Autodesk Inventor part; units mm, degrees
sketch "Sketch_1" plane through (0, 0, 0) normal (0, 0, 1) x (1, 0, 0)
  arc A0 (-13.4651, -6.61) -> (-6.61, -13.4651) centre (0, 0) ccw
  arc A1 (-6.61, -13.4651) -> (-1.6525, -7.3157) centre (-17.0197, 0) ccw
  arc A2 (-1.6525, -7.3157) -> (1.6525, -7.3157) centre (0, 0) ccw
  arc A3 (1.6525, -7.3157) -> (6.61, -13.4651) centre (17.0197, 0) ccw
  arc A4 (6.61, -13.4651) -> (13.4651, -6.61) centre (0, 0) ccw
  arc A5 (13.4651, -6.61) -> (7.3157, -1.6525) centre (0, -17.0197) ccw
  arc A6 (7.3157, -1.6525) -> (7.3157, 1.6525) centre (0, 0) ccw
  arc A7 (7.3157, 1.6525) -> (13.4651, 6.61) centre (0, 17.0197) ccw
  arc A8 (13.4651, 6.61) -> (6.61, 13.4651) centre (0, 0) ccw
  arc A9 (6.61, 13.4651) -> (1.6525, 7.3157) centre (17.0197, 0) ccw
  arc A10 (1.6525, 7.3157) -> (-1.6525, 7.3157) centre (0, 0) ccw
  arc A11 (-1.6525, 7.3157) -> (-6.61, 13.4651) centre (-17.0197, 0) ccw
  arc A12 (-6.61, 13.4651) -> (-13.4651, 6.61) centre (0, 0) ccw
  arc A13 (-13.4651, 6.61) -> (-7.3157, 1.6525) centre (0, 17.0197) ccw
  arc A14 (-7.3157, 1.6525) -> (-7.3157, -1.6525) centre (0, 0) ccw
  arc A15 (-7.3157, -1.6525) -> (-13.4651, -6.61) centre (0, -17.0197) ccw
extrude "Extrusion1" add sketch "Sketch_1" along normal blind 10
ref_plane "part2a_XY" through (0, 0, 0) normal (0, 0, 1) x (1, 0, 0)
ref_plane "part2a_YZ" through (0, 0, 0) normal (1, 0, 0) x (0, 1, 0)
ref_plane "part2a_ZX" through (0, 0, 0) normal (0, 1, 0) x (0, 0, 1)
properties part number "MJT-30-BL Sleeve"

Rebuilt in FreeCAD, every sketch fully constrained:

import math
import FreeCAD as App
import Part
import Sketcher
Q = App.Units.Quantity

doc = App.newDocument("Part")
body = doc.addObject("PartDesign::Body", "Body")

# Sketch on XY plane
sketch1 = body.newObject("Sketcher::SketchObject", "Sketch")
sketch1.AttachmentSupport = (doc.getObject("XY_Plane"), [""])
sketch1.MapMode = "FlatFace"
sketch1.addGeometry([
    Part.ArcOfCircle(Part.Circle(App.Vector(0, -17, 0), App.Vector(0, 0, 1), 17), math.radians(115), math.radians(142)),  # 0
    Part.ArcOfCircle(Part.Circle(App.Vector(0, 0, 0), App.Vector(0, 0, 1), 15), math.radians(-154), math.radians(-116)),  # 1
    Part.ArcOfCircle(Part.Circle(App.Vector(-17, 0, 0), App.Vector(0, 0, 1), 17), math.radians(-52), math.radians(-25)),  # 2
    Part.ArcOfCircle(Part.Circle(App.Vector(0, 0, 0), App.Vector(0, 0, 1), 7.5), math.radians(-103), math.radians(-77)),  # 3
    Part.ArcOfCircle(Part.Circle(App.Vector(17, 0, 0), App.Vector(0, 0, 1), 17), math.radians(-155), math.radians(-128)),  # 4
    Part.ArcOfCircle(Part.Circle(App.Vector(0, 0, 0), App.Vector(0, 0, 1), 15), math.radians(-64), math.radians(-26)),  # 5
    Part.ArcOfCircle(Part.Circle(App.Vector(0, -17, 0), App.Vector(0, 0, 1), 17), math.radians(38), math.radians(65)),  # 6
    Part.ArcOfCircle(Part.Circle(App.Vector(0, 0, 0), App.Vector(0, 0, 1), 7.5), math.radians(-13), math.radians(13)),  # 7
    Part.ArcOfCircle(Part.Circle(App.Vector(0, 17, 0), App.Vector(0, 0, 1), 17), math.radians(-65), math.radians(-38)),  # 8
    Part.ArcOfCircle(Part.Circle(App.Vector(0, 0, 0), App.Vector(0, 0, 1), 15), math.radians(26), math.radians(64)),  # 9
    Part.ArcOfCircle(Part.Circle(App.Vector(17, 0, 0), App.Vector(0, 0, 1), 17), math.radians(128), math.radians(155)),  # 10
    Part.ArcOfCircle(Part.Circle(App.Vector(0, 0, 0), App.Vector(0, 0, 1), 7.5), math.radians(77), math.radians(103)),  # 11
    Part.ArcOfCircle(Part.Circle(App.Vector(-17, 0, 0), App.Vector(0, 0, 1), 17), math.radians(25), math.radians(52)),  # 12
    Part.ArcOfCircle(Part.Circle(App.Vector(0, 0, 0), App.Vector(0, 0, 1), 15), math.radians(116), math.radians(154)),  # 13
    Part.ArcOfCircle(Part.Circle(App.Vector(0, 17, 0), App.Vector(0, 0, 1), 17), math.radians(-142), math.radians(-115)),  # 14
    Part.ArcOfCircle(Part.Circle(App.Vector(0, 0, 0), App.Vector(0, 0, 1), 7.5), math.radians(167), math.radians(193)),  # 15
], False)
sketch1.addConstraint([
    Sketcher.Constraint("Coincident", 0, 2, 1, 1),
    Sketcher.Constraint("Coincident", 1, 2, 2, 1),
    Sketcher.Constraint("Coincident", 2, 2, 3, 1),
    Sketcher.Constraint("Coincident", 3, 2, 4, 1),
    Sketcher.Constraint("Coincident", 4, 2, 5, 1),
    Sketcher.Constraint("Coincident", 5, 2, 6, 1),
    Sketcher.Constraint("Coincident", 6, 2, 7, 1),
    Sketcher.Constraint("Coincident", 7, 2, 8, 1),
    Sketcher.Constraint("Coincident", 8, 2, 9, 1),
    Sketcher.Constraint("Coincident", 9, 2, 10, 1),
    Sketcher.Constraint("Coincident", 10, 2, 11, 1),
    Sketcher.Constraint("Coincident", 11, 2, 12, 1),
    Sketcher.Constraint("Coincident", 12, 2, 13, 1),
    Sketcher.Constraint("Coincident", 13, 2, 14, 1),
    Sketcher.Constraint("Coincident", 14, 2, 15, 1),
    Sketcher.Constraint("Coincident", 15, 2, 0, 1),
    Sketcher.Constraint("Coincident", 1, 3, -1, 1),
    Sketcher.Constraint("Coincident", 3, 3, -1, 1),
    Sketcher.Constraint("Coincident", 5, 3, -1, 1),
    Sketcher.Constraint("Coincident", 7, 3, -1, 1),
    Sketcher.Constraint("Coincident", 9, 3, -1, 1),
    Sketcher.Constraint("Coincident", 11, 3, -1, 1),
    Sketcher.Constraint("Coincident", 13, 3, -1, 1),
    Sketcher.Constraint("Coincident", 15, 3, -1, 1),
    Sketcher.Constraint("Coincident", 6, 3, 0, 3),
    Sketcher.Constraint("Coincident", 10, 3, 4, 3),
    Sketcher.Constraint("Coincident", 12, 3, 2, 3),
    Sketcher.Constraint("Coincident", 14, 3, 8, 3),
    Sketcher.Constraint("Equal", 0, 2),
    Sketcher.Constraint("Equal", 2, 4),
    Sketcher.Constraint("Equal", 1, 5),
    Sketcher.Constraint("Equal", 4, 6),
    Sketcher.Constraint("Equal", 3, 7),
    Sketcher.Constraint("Equal", 6, 8),
    Sketcher.Constraint("Equal", 5, 9),
    Sketcher.Constraint("Equal", 8, 10),
    Sketcher.Constraint("Equal", 7, 11),
    Sketcher.Constraint("Equal", 10, 12),
    Sketcher.Constraint("Equal", 9, 13),
    Sketcher.Constraint("Equal", 12, 14),
    Sketcher.Constraint("Equal", 11, 15),
    Sketcher.Constraint("Symmetric", 2, 3, 4, 3, -1, 1),
    Sketcher.Constraint("Symmetric", 0, 3, 8, 3, -1, 1),
    Sketcher.Constraint("PointOnObject", 0, 3, -2),
    Sketcher.Constraint("PointOnObject", 2, 3, -1),
    Sketcher.Constraint("Radius", 1, Q("15 mm")),
    Sketcher.Constraint("Radius", 3, Q("7.5 mm")),
    Sketcher.Constraint("Radius", 0, Q("17.0197 mm")),
    Sketcher.Constraint("DistanceY", 0, 2, -1, 1, Q("6.61 mm")),
    Sketcher.Constraint("DistanceX", 1, 2, -1, 1, Q("6.61 mm")),
])
pad1 = body.newObject("PartDesign::Pad", "Pad")
pad1.Profile = sketch1
pad1.Length = 10

doc.recompute()
